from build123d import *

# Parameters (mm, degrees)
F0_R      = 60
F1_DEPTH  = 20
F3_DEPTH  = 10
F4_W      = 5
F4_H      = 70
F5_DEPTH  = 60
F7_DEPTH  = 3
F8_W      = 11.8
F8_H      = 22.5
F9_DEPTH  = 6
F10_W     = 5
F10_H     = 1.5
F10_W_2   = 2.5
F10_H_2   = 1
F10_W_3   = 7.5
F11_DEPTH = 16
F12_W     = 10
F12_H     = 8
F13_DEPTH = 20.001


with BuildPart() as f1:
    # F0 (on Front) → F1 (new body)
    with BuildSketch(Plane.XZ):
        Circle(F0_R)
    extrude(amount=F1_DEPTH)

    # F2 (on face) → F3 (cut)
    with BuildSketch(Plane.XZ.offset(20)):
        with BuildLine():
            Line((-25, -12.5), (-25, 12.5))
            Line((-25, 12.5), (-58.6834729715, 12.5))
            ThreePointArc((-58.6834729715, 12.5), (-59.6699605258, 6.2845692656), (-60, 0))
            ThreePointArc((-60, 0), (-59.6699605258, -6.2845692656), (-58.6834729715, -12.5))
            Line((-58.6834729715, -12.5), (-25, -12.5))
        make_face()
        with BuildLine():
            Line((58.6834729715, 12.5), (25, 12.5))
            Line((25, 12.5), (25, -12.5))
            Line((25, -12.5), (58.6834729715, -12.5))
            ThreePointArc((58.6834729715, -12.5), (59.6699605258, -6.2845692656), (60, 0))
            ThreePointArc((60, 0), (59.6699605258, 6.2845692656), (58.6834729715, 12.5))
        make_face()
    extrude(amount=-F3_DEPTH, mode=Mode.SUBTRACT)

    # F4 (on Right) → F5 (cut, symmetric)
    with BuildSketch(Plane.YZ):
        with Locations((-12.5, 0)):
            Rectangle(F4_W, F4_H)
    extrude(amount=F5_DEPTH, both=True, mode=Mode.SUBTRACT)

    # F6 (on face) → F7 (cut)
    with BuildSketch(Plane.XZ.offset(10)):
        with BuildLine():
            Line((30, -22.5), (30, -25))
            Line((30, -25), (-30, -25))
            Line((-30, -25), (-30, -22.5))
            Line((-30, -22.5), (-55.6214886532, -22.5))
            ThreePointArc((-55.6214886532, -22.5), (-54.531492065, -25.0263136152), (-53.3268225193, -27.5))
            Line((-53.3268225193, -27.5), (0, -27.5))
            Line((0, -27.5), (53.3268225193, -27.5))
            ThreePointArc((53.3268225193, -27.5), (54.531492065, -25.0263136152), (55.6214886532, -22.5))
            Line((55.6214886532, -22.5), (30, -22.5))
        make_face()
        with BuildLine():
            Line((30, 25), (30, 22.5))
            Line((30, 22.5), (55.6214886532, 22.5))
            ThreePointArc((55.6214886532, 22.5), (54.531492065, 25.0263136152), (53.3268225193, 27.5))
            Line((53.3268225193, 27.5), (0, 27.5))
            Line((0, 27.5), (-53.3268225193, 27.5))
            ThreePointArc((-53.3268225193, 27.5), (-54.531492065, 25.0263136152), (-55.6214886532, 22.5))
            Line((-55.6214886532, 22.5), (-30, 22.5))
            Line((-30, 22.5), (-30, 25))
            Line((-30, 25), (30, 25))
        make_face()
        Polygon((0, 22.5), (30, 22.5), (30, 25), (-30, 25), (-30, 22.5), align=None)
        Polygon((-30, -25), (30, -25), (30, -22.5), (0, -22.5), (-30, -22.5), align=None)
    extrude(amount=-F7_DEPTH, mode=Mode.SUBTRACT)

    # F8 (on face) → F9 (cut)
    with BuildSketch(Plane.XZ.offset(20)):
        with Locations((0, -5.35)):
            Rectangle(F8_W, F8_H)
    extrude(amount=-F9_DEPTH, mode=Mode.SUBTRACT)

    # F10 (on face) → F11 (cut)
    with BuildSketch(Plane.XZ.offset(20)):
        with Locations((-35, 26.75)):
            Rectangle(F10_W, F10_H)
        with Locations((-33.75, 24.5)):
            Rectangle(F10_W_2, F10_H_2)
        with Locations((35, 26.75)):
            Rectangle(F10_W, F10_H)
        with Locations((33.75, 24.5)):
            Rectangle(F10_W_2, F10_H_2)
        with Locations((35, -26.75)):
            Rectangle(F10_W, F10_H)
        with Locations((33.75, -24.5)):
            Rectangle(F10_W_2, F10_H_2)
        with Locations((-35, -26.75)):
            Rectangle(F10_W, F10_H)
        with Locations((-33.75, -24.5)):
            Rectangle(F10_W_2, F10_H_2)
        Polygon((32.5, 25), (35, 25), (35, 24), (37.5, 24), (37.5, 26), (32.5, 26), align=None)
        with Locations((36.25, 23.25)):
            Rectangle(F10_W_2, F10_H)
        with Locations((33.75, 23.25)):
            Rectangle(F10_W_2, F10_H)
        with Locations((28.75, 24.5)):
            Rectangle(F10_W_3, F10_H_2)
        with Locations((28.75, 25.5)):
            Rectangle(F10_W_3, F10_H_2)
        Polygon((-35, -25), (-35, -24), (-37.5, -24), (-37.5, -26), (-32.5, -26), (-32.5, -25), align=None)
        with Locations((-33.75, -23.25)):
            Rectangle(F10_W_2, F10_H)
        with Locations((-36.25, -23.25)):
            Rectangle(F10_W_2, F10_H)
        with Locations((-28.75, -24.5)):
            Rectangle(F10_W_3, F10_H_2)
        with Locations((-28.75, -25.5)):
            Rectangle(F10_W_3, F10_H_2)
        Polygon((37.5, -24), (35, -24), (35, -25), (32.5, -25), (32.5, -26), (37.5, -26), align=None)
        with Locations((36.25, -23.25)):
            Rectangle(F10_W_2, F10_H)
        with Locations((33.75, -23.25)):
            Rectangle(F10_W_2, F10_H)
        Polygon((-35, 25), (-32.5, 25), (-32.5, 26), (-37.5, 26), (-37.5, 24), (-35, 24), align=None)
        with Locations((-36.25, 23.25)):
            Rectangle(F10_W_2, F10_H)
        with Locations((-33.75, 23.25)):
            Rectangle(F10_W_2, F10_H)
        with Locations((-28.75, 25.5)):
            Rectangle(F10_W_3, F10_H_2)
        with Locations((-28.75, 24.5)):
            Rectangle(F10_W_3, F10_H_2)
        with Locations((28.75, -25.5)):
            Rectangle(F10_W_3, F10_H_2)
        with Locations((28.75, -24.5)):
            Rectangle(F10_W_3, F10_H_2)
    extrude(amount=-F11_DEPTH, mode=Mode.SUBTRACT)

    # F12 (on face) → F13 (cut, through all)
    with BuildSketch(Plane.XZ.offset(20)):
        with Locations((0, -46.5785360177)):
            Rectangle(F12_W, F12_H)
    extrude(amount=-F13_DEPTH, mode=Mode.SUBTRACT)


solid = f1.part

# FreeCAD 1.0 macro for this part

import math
import FreeCAD as App
import Part
import Sketcher
Q = App.Units.Quantity

doc = App.newDocument("Part")
body = doc.addObject("PartDesign::Body", "Body")

sketch1 = doc.addObject("Sketcher::SketchObject", "Sketch")
body.addObject(sketch1)
sketch1.AttachmentSupport = (doc.XZ_Plane, [""])
sketch1.MapMode = "FlatFace"
sketch1.addGeometry(Part.Circle(App.Vector(0, 0, 0), App.Vector(0, 0, 1), 60), False)
sketch1.addConstraint(Sketcher.Constraint("Coincident", 0, 3, -1, 1))
sketch1.addConstraint(Sketcher.Constraint("Diameter", 0, Q("120 mm")))
pad1 = doc.addObject("PartDesign::Pad", "Pad")
body.addObject(pad1)
pad1.Profile = sketch1
pad1.Length = 20

sketch2 = doc.addObject("Sketcher::SketchObject", "Sketch001")
body.addObject(sketch2)
sketch2.AttachmentSupport = (doc.XZ_Plane, [""])
sketch2.MapMode = "FlatFace"
sketch2.AttachmentOffset = App.Placement(App.Vector(0, 0, 20), App.Rotation())
sketch2.addGeometry(Part.LineSegment(App.Vector(-25, -12, 0), App.Vector(-25, 12, 0)), False)
sketch2.addGeometry(Part.LineSegment(App.Vector(-25, 12, 0), App.Vector(-59, 12, 0)), False)
sketch2.addGeometry(Part.ArcOfCircle(Part.Circle(App.Vector(0, 0, 0), App.Vector(0, 0, 1), 60), math.radians(167.98), math.radians(180)), False)
sketch2.addGeometry(Part.ArcOfCircle(Part.Circle(App.Vector(0, 0, 0), App.Vector(0, 0, 1), 60), math.radians(180), math.radians(192.02)), False)
sketch2.addGeometry(Part.LineSegment(App.Vector(-59, -12, 0), App.Vector(-25, -12, 0)), False)
sketch2.addGeometry(Part.LineSegment(App.Vector(59, 12, 0), App.Vector(25, 12, 0)), False)
sketch2.addGeometry(Part.LineSegment(App.Vector(25, 12, 0), App.Vector(25, -12, 0)), False)
sketch2.addGeometry(Part.LineSegment(App.Vector(25, -12, 0), App.Vector(59, -12, 0)), False)
sketch2.addGeometry(Part.ArcOfCircle(Part.Circle(App.Vector(0, 0, 0), App.Vector(0, 0, 1), 60), math.radians(-12.02), math.radians(0)), False)
sketch2.addGeometry(Part.ArcOfCircle(Part.Circle(App.Vector(0, 0, 0), App.Vector(0, 0, 1), 60), math.radians(0), math.radians(12.02)), False)
sketch2.addConstraint(Sketcher.Constraint("Coincident", 0, 2, 1, 1))
sketch2.addConstraint(Sketcher.Constraint("Coincident", 1, 2, 2, 1))
sketch2.addConstraint(Sketcher.Constraint("Tangent", 2, 2, 3, 1))
sketch2.addConstraint(Sketcher.Constraint("Coincident", 3, 2, 4, 1))
sketch2.addConstraint(Sketcher.Constraint("Coincident", 4, 2, 0, 1))
sketch2.addConstraint(Sketcher.Constraint("Coincident", 5, 2, 6, 1))
sketch2.addConstraint(Sketcher.Constraint("Coincident", 6, 2, 7, 1))
sketch2.addConstraint(Sketcher.Constraint("Coincident", 7, 2, 8, 1))
sketch2.addConstraint(Sketcher.Constraint("Tangent", 8, 2, 9, 1))
sketch2.addConstraint(Sketcher.Constraint("Coincident", 9, 2, 5, 1))
sketch2.addConstraint(Sketcher.Constraint("Vertical", 0))
sketch2.addConstraint(Sketcher.Constraint("Horizontal", 1))
sketch2.addConstraint(Sketcher.Constraint("Horizontal", 4))
sketch2.addConstraint(Sketcher.Constraint("Horizontal", 5))
sketch2.addConstraint(Sketcher.Constraint("Vertical", 6))
sketch2.addConstraint(Sketcher.Constraint("Horizontal", 7))
sketch2.addConstraint(Sketcher.Constraint("Coincident", 2, 3, -1, 1))
sketch2.addConstraint(Sketcher.Constraint("Coincident", 8, 3, -1, 1))
sketch2.addConstraint(Sketcher.Constraint("Equal", 2, 3))
sketch2.addConstraint(Sketcher.Constraint("Equal", 3, 8))
sketch2.addConstraint(Sketcher.Constraint("Equal", 8, 9))
sketch2.addConstraint(Sketcher.Constraint("Symmetric", 4, 2, 5, 2, -1, 1))
sketch2.addConstraint(Sketcher.Constraint("PointOnObject", 2, 2, -1))
sketch2.addConstraint(Sketcher.Constraint("PointOnObject", 8, 2, -1))
sketch2.addConstraint(Sketcher.Constraint("Horizontal", 1, 2, 5, 2))
sketch2.addConstraint(Sketcher.Constraint("Horizontal", 4, 2, 6, 2))
sketch2.addConstraint(Sketcher.Constraint("Radius", 2, Q("60 mm")))
sketch2.addConstraint(Sketcher.Constraint("DistanceY", 0, 1, 0, 2, Q("25 mm")))
sketch2.addConstraint(Sketcher.Constraint("DistanceX", 0, 2, -1, 1, Q("25 mm")))
pocket1 = doc.addObject("PartDesign::Pocket", "Pocket")
body.addObject(pocket1)
pocket1.Profile = sketch2
pocket1.Length = 10

sketch3 = doc.addObject("Sketcher::SketchObject", "Sketch002")
body.addObject(sketch3)
sketch3.AttachmentSupport = (doc.YZ_Plane, [""])
sketch3.MapMode = "FlatFace"
sketch3.addGeometry(Part.LineSegment(App.Vector(-15, 35, 0), App.Vector(-15, -35, 0)), False)
sketch3.addGeometry(Part.LineSegment(App.Vector(-15, -35, 0), App.Vector(-10, -35, 0)), False)
sketch3.addGeometry(Part.LineSegment(App.Vector(-10, -35, 0), App.Vector(-10, 35, 0)), False)
sketch3.addGeometry(Part.LineSegment(App.Vector(-10, 35, 0), App.Vector(-15, 35, 0)), False)
sketch3.addConstraint(Sketcher.Constraint("Coincident", 0, 2, 1, 1))
sketch3.addConstraint(Sketcher.Constraint("Coincident", 1, 2, 2, 1))
sketch3.addConstraint(Sketcher.Constraint("Coincident", 2, 2, 3, 1))
sketch3.addConstraint(Sketcher.Constraint("Coincident", 3, 2, 0, 1))
sketch3.addConstraint(Sketcher.Constraint("Vertical", 0))
sketch3.addConstraint(Sketcher.Constraint("Horizontal", 1))
sketch3.addConstraint(Sketcher.Constraint("Vertical", 2))
sketch3.addConstraint(Sketcher.Constraint("Horizontal", 3))
sketch3.addConstraint(Sketcher.Constraint("DistanceX", 1, 1, 1, 2, Q("5 mm")))
sketch3.addConstraint(Sketcher.Constraint("DistanceY", 0, 2, 0, 1, Q("70 mm")))
sketch3.addConstraint(Sketcher.Constraint("DistanceX", 0, 2, -1, 1, Q("15 mm")))
sketch3.addConstraint(Sketcher.Constraint("DistanceY", 0, 2, -1, 1, Q("35 mm")))
pocket2 = doc.addObject("PartDesign::Pocket", "Pocket001")
body.addObject(pocket2)
pocket2.Profile = sketch3
pocket2.Length = 120
pocket2.Midplane = True

sketch4 = doc.addObject("Sketcher::SketchObject", "Sketch003")
body.addObject(sketch4)
sketch4.AttachmentSupport = (doc.XZ_Plane, [""])
sketch4.MapMode = "FlatFace"
sketch4.AttachmentOffset = App.Placement(App.Vector(0, 0, 10), App.Rotation())
sketch4.addGeometry(Part.ArcOfCircle(Part.Circle(App.Vector(0, 0, 0), App.Vector(0, 0, 1), 60), math.radians(-157.98), math.radians(-152.72)), False)
sketch4.addGeometry(Part.LineSegment(App.Vector(-53, -28, 0), App.Vector(53, -28, 0)), False)
sketch4.addGeometry(Part.ArcOfCircle(Part.Circle(App.Vector(0, 0, 0), App.Vector(0, 0, 1), 60), math.radians(-27.28), math.radians(-22.02)), False)
sketch4.addGeometry(Part.LineSegment(App.Vector(56, -22, 0), App.Vector(-56, -22, 0)), False)
sketch4.addGeometry(Part.ArcOfCircle(Part.Circle(App.Vector(0, 0, 0), App.Vector(0, 0, 1), 60), math.radians(22.02), math.radians(27.28)), False)
sketch4.addGeometry(Part.LineSegment(App.Vector(53, 28, 0), App.Vector(-53, 28, 0)), False)
sketch4.addGeometry(Part.ArcOfCircle(Part.Circle(App.Vector(0, 0, 0), App.Vector(0, 0, 1), 60), math.radians(152.72), math.radians(157.98)), False)
sketch4.addGeometry(Part.LineSegment(App.Vector(-56, 22, 0), App.Vector(56, 22, 0)), False)
sketch4.addConstraint(Sketcher.Constraint("Coincident", 0, 2, 1, 1))
sketch4.addConstraint(Sketcher.Constraint("Coincident", 1, 2, 2, 1))
sketch4.addConstraint(Sketcher.Constraint("Coincident", 2, 2, 3, 1))
sketch4.addConstraint(Sketcher.Constraint("Coincident", 3, 2, 0, 1))
sketch4.addConstraint(Sketcher.Constraint("Coincident", 4, 2, 5, 1))
sketch4.addConstraint(Sketcher.Constraint("Coincident", 5, 2, 6, 1))
sketch4.addConstraint(Sketcher.Constraint("Coincident", 6, 2, 7, 1))
sketch4.addConstraint(Sketcher.Constraint("Coincident", 7, 2, 4, 1))
sketch4.addConstraint(Sketcher.Constraint("Horizontal", 1))
sketch4.addConstraint(Sketcher.Constraint("Horizontal", 3))
sketch4.addConstraint(Sketcher.Constraint("Horizontal", 5))
sketch4.addConstraint(Sketcher.Constraint("Horizontal", 7))
sketch4.addConstraint(Sketcher.Constraint("Coincident", 0, 3, -1, 1))
sketch4.addConstraint(Sketcher.Constraint("Coincident", 2, 3, -1, 1))
sketch4.addConstraint(Sketcher.Constraint("Coincident", 4, 3, -1, 1))
sketch4.addConstraint(Sketcher.Constraint("Coincident", 6, 3, -1, 1))
sketch4.addConstraint(Sketcher.Constraint("Equal", 0, 2))
sketch4.addConstraint(Sketcher.Constraint("Equal", 2, 4))
sketch4.addConstraint(Sketcher.Constraint("Equal", 4, 6))
sketch4.addConstraint(Sketcher.Constraint("Vertical", 1, 2, 4, 2))
sketch4.addConstraint(Sketcher.Constraint("Vertical", 3, 2, 6, 2))
sketch4.addConstraint(Sketcher.Constraint("Radius", 0, Q("60 mm")))
sketch4.addConstraint(Sketcher.Constraint("DistanceY", 1, 2, 2, 2, Q("5 mm")))
sketch4.addConstraint(Sketcher.Constraint("DistanceY", 2, 2, 4, 2, Q("50 mm")))
pocket3 = doc.addObject("PartDesign::Pocket", "Pocket002")
body.addObject(pocket3)
pocket3.Profile = sketch4
pocket3.Length = 3

sketch5 = doc.addObject("Sketcher::SketchObject", "Sketch004")
body.addObject(sketch5)
sketch5.AttachmentSupport = (doc.XZ_Plane, [""])
sketch5.MapMode = "FlatFace"
sketch5.AttachmentOffset = App.Placement(App.Vector(0, 0, 20), App.Rotation())
sketch5.addGeometry(Part.LineSegment(App.Vector(-6, 6, 0), App.Vector(-6, -17, 0)), False)
sketch5.addGeometry(Part.LineSegment(App.Vector(-6, -17, 0), App.Vector(6, -17, 0)), False)
sketch5.addGeometry(Part.LineSegment(App.Vector(6, -17, 0), App.Vector(6, 6, 0)), False)
sketch5.addGeometry(Part.LineSegment(App.Vector(6, 6, 0), App.Vector(-6, 6, 0)), False)
sketch5.addConstraint(Sketcher.Constraint("Coincident", 0, 2, 1, 1))
sketch5.addConstraint(Sketcher.Constraint("Coincident", 1, 2, 2, 1))
sketch5.addConstraint(Sketcher.Constraint("Coincident", 2, 2, 3, 1))
sketch5.addConstraint(Sketcher.Constraint("Coincident", 3, 2, 0, 1))
sketch5.addConstraint(Sketcher.Constraint("Vertical", 0))
sketch5.addConstraint(Sketcher.Constraint("Horizontal", 1))
sketch5.addConstraint(Sketcher.Constraint("Vertical", 2))
sketch5.addConstraint(Sketcher.Constraint("Horizontal", 3))
sketch5.addConstraint(Sketcher.Constraint("DistanceX", 1, 1, 1, 2, Q("11.8 mm")))
sketch5.addConstraint(Sketcher.Constraint("DistanceY", 0, 2, 0, 1, Q("22.5 mm")))
sketch5.addConstraint(Sketcher.Constraint("DistanceX", 0, 2, -1, 1, Q("5.9 mm")))
sketch5.addConstraint(Sketcher.Constraint("DistanceY", 0, 2, -1, 1, Q("16.6 mm")))
pocket4 = doc.addObject("PartDesign::Pocket", "Pocket003")
body.addObject(pocket4)
pocket4.Profile = sketch5
pocket4.Length = 6

sketch6 = doc.addObject("Sketcher::SketchObject", "Sketch005")
body.addObject(sketch6)
sketch6.AttachmentSupport = (doc.XZ_Plane, [""])
sketch6.MapMode = "FlatFace"
sketch6.AttachmentOffset = App.Placement(App.Vector(0, 0, 20), App.Rotation())
sketch6.addGeometry(Part.LineSegment(App.Vector(-37.5, 27.5, 0), App.Vector(-37.5, 22.5, 0)), False)
sketch6.addGeometry(Part.LineSegment(App.Vector(-37.5, 22.5, 0), App.Vector(-32.5, 22.5, 0)), False)
sketch6.addGeometry(Part.LineSegment(App.Vector(-32.5, 22.5, 0), App.Vector(-32.5, 24, 0)), False)
sketch6.addGeometry(Part.LineSegment(App.Vector(-32.5, 24, 0), App.Vector(-25, 24, 0)), False)
sketch6.addGeometry(Part.LineSegment(App.Vector(-25, 24, 0), App.Vector(-25, 26, 0)), False)
sketch6.addGeometry(Part.LineSegment(App.Vector(-25, 26, 0), App.Vector(-32.5, 26, 0)), False)
sketch6.addGeometry(Part.LineSegment(App.Vector(-32.5, 26, 0), App.Vector(-32.5, 27.5, 0)), False)
sketch6.addGeometry(Part.LineSegment(App.Vector(-32.5, 27.5, 0), App.Vector(-37.5, 27.5, 0)), False)
sketch6.addGeometry(Part.LineSegment(App.Vector(32.5, 27.5, 0), App.Vector(32.5, 26, 0)), False)
sketch6.addGeometry(Part.LineSegment(App.Vector(32.5, 26, 0), App.Vector(25, 26, 0)), False)
sketch6.addGeometry(Part.LineSegment(App.Vector(25, 26, 0), App.Vector(25, 24, 0)), False)
sketch6.addGeometry(Part.LineSegment(App.Vector(25, 24, 0), App.Vector(32.5, 24, 0)), False)
sketch6.addGeometry(Part.LineSegment(App.Vector(32.5, 24, 0), App.Vector(32.5, 22.5, 0)), False)
sketch6.addGeometry(Part.LineSegment(App.Vector(32.5, 22.5, 0), App.Vector(37.5, 22.5, 0)), False)
sketch6.addGeometry(Part.LineSegment(App.Vector(37.5, 22.5, 0), App.Vector(37.5, 27.5, 0)), False)
sketch6.addGeometry(Part.LineSegment(App.Vector(37.5, 27.5, 0), App.Vector(32.5, 27.5, 0)), False)
sketch6.addGeometry(Part.LineSegment(App.Vector(32.5, -27.5, 0), App.Vector(37.5, -27.5, 0)), False)
sketch6.addGeometry(Part.LineSegment(App.Vector(37.5, -27.5, 0), App.Vector(37.5, -22.5, 0)), False)
sketch6.addGeometry(Part.LineSegment(App.Vector(37.5, -22.5, 0), App.Vector(32.5, -22.5, 0)), False)
sketch6.addGeometry(Part.LineSegment(App.Vector(32.5, -22.5, 0), App.Vector(32.5, -24, 0)), False)
sketch6.addGeometry(Part.LineSegment(App.Vector(32.5, -24, 0), App.Vector(25, -24, 0)), False)
sketch6.addGeometry(Part.LineSegment(App.Vector(25, -24, 0), App.Vector(25, -26, 0)), False)
sketch6.addGeometry(Part.LineSegment(App.Vector(25, -26, 0), App.Vector(32.5, -26, 0)), False)
sketch6.addGeometry(Part.LineSegment(App.Vector(32.5, -26, 0), App.Vector(32.5, -27.5, 0)), False)
sketch6.addGeometry(Part.LineSegment(App.Vector(-37.5, -27.5, 0), App.Vector(-32.5, -27.5, 0)), False)
sketch6.addGeometry(Part.LineSegment(App.Vector(-32.5, -27.5, 0), App.Vector(-32.5, -26, 0)), False)
sketch6.addGeometry(Part.LineSegment(App.Vector(-32.5, -26, 0), App.Vector(-25, -26, 0)), False)
sketch6.addGeometry(Part.LineSegment(App.Vector(-25, -26, 0), App.Vector(-25, -24, 0)), False)
sketch6.addGeometry(Part.LineSegment(App.Vector(-25, -24, 0), App.Vector(-32.5, -24, 0)), False)
sketch6.addGeometry(Part.LineSegment(App.Vector(-32.5, -24, 0), App.Vector(-32.5, -22.5, 0)), False)
sketch6.addGeometry(Part.LineSegment(App.Vector(-32.5, -22.5, 0), App.Vector(-37.5, -22.5, 0)), False)
sketch6.addGeometry(Part.LineSegment(App.Vector(-37.5, -22.5, 0), App.Vector(-37.5, -27.5, 0)), False)
sketch6.addConstraint(Sketcher.Constraint("Coincident", 0, 2, 1, 1))
sketch6.addConstraint(Sketcher.Constraint("Coincident", 1, 2, 2, 1))
sketch6.addConstraint(Sketcher.Constraint("Coincident", 2, 2, 3, 1))
sketch6.addConstraint(Sketcher.Constraint("Coincident", 3, 2, 4, 1))
sketch6.addConstraint(Sketcher.Constraint("Coincident", 4, 2, 5, 1))
sketch6.addConstraint(Sketcher.Constraint("Coincident", 5, 2, 6, 1))
sketch6.addConstraint(Sketcher.Constraint("Coincident", 6, 2, 7, 1))
sketch6.addConstraint(Sketcher.Constraint("Coincident", 7, 2, 0, 1))
sketch6.addConstraint(Sketcher.Constraint("Coincident", 8, 2, 9, 1))
sketch6.addConstraint(Sketcher.Constraint("Coincident", 9, 2, 10, 1))
sketch6.addConstraint(Sketcher.Constraint("Coincident", 10, 2, 11, 1))
sketch6.addConstraint(Sketcher.Constraint("Coincident", 11, 2, 12, 1))
sketch6.addConstraint(Sketcher.Constraint("Coincident", 12, 2, 13, 1))
sketch6.addConstraint(Sketcher.Constraint("Coincident", 13, 2, 14, 1))
sketch6.addConstraint(Sketcher.Constraint("Coincident", 14, 2, 15, 1))
sketch6.addConstraint(Sketcher.Constraint("Coincident", 15, 2, 8, 1))
sketch6.addConstraint(Sketcher.Constraint("Coincident", 16, 2, 17, 1))
sketch6.addConstraint(Sketcher.Constraint("Coincident", 17, 2, 18, 1))
sketch6.addConstraint(Sketcher.Constraint("Coincident", 18, 2, 19, 1))
sketch6.addConstraint(Sketcher.Constraint("Coincident", 19, 2, 20, 1))
sketch6.addConstraint(Sketcher.Constraint("Coincident", 20, 2, 21, 1))
sketch6.addConstraint(Sketcher.Constraint("Coincident", 21, 2, 22, 1))
sketch6.addConstraint(Sketcher.Constraint("Coincident", 22, 2, 23, 1))
sketch6.addConstraint(Sketcher.Constraint("Coincident", 23, 2, 16, 1))
sketch6.addConstraint(Sketcher.Constraint("Coincident", 24, 2, 25, 1))
sketch6.addConstraint(Sketcher.Constraint("Coincident", 25, 2, 26, 1))
sketch6.addConstraint(Sketcher.Constraint("Coincident", 26, 2, 27, 1))
sketch6.addConstraint(Sketcher.Constraint("Coincident", 27, 2, 28, 1))
sketch6.addConstraint(Sketcher.Constraint("Coincident", 28, 2, 29, 1))
sketch6.addConstraint(Sketcher.Constraint("Coincident", 29, 2, 30, 1))
sketch6.addConstraint(Sketcher.Constraint("Coincident", 30, 2, 31, 1))
sketch6.addConstraint(Sketcher.Constraint("Coincident", 31, 2, 24, 1))
sketch6.addConstraint(Sketcher.Constraint("Vertical", 0))
sketch6.addConstraint(Sketcher.Constraint("Horizontal", 1))
sketch6.addConstraint(Sketcher.Constraint("Vertical", 2))
sketch6.addConstraint(Sketcher.Constraint("Horizontal", 3))
sketch6.addConstraint(Sketcher.Constraint("Vertical", 4))
sketch6.addConstraint(Sketcher.Constraint("Horizontal", 5))
sketch6.addConstraint(Sketcher.Constraint("Vertical", 6))
sketch6.addConstraint(Sketcher.Constraint("Horizontal", 7))
sketch6.addConstraint(Sketcher.Constraint("Vertical", 8))
sketch6.addConstraint(Sketcher.Constraint("Horizontal", 9))
sketch6.addConstraint(Sketcher.Constraint("Vertical", 10))
sketch6.addConstraint(Sketcher.Constraint("Horizontal", 11))
sketch6.addConstraint(Sketcher.Constraint("Vertical", 12))
sketch6.addConstraint(Sketcher.Constraint("Horizontal", 13))
sketch6.addConstraint(Sketcher.Constraint("Vertical", 14))
sketch6.addConstraint(Sketcher.Constraint("Horizontal", 15))
sketch6.addConstraint(Sketcher.Constraint("Horizontal", 16))
sketch6.addConstraint(Sketcher.Constraint("Vertical", 17))
sketch6.addConstraint(Sketcher.Constraint("Horizontal", 18))
sketch6.addConstraint(Sketcher.Constraint("Vertical", 19))
sketch6.addConstraint(Sketcher.Constraint("Horizontal", 20))
sketch6.addConstraint(Sketcher.Constraint("Vertical", 21))
sketch6.addConstraint(Sketcher.Constraint("Horizontal", 22))
sketch6.addConstraint(Sketcher.Constraint("Vertical", 23))
sketch6.addConstraint(Sketcher.Constraint("Horizontal", 24))
sketch6.addConstraint(Sketcher.Constraint("Vertical", 25))
sketch6.addConstraint(Sketcher.Constraint("Horizontal", 26))
sketch6.addConstraint(Sketcher.Constraint("Vertical", 27))
sketch6.addConstraint(Sketcher.Constraint("Horizontal", 28))
sketch6.addConstraint(Sketcher.Constraint("Vertical", 29))
sketch6.addConstraint(Sketcher.Constraint("Horizontal", 30))
sketch6.addConstraint(Sketcher.Constraint("Vertical", 31))
sketch6.addConstraint(Sketcher.Constraint("Symmetric", 7, 2, 16, 2, -1, 1))
sketch6.addConstraint(Sketcher.Constraint("Symmetric", 1, 2, 18, 2, -1, 1))
sketch6.addConstraint(Sketcher.Constraint("Symmetric", 3, 2, 20, 2, -1, 1))
sketch6.addConstraint(Sketcher.Constraint("Symmetric", 5, 2, 22, 2, -1, 1))
sketch6.addConstraint(Sketcher.Constraint("Symmetric", 15, 2, 24, 2, -1, 1))
sketch6.addConstraint(Sketcher.Constraint("Symmetric", 9, 2, 26, 2, -1, 1))
sketch6.addConstraint(Sketcher.Constraint("Symmetric", 11, 2, 28, 2, -1, 1))
sketch6.addConstraint(Sketcher.Constraint("Symmetric", 13, 2, 30, 2, -1, 1))
sketch6.addConstraint(Sketcher.Constraint("Symmetric", 5, 2, 8, 2, -2))
sketch6.addConstraint(Sketcher.Constraint("Symmetric", 3, 2, 10, 2, -2))
sketch6.addConstraint(Sketcher.Constraint("Symmetric", 1, 2, 12, 2, -2))
sketch6.addConstraint(Sketcher.Constraint("Symmetric", 7, 2, 14, 2, -2))
sketch6.addConstraint(Sketcher.Constraint("Vertical", 2, 2, 5, 2))
sketch6.addConstraint(Sketcher.Constraint("Equal", 30, 0))
sketch6.addConstraint(Sketcher.Constraint("Equal", 2, 6))
sketch6.addConstraint(Sketcher.Constraint("DistanceX", 1, 1, 1, 2, Q("5 mm")))
sketch6.addConstraint(Sketcher.Constraint("DistanceY", 4, 1, 4, 2, Q("2 mm")))
sketch6.addConstraint(Sketcher.Constraint("DistanceX", 3, 1, 3, 2, Q("7.5 mm")))
sketch6.addConstraint(Sketcher.Constraint("DistanceY", -1, 1, 2, 2, Q("24 mm")))
sketch6.addConstraint(Sketcher.Constraint("DistanceX", 3, 2, -1, 1, Q("25 mm")))
pocket5 = doc.addObject("PartDesign::Pocket", "Pocket004")
body.addObject(pocket5)
pocket5.Profile = sketch6
pocket5.Length = 16

sketch7 = doc.addObject("Sketcher::SketchObject", "Sketch006")
body.addObject(sketch7)
sketch7.AttachmentSupport = (doc.XZ_Plane, [""])
sketch7.MapMode = "FlatFace"
sketch7.AttachmentOffset = App.Placement(App.Vector(0, 0, 20), App.Rotation())
sketch7.addGeometry(Part.LineSegment(App.Vector(-5, -43, 0), App.Vector(-5, -51, 0)), False)
sketch7.addGeometry(Part.LineSegment(App.Vector(-5, -51, 0), App.Vector(5, -51, 0)), False)
sketch7.addGeometry(Part.LineSegment(App.Vector(5, -51, 0), App.Vector(5, -43, 0)), False)
sketch7.addGeometry(Part.LineSegment(App.Vector(5, -43, 0), App.Vector(-5, -43, 0)), False)
sketch7.addConstraint(Sketcher.Constraint("Coincident", 0, 2, 1, 1))
sketch7.addConstraint(Sketcher.Constraint("Coincident", 1, 2, 2, 1))
sketch7.addConstraint(Sketcher.Constraint("Coincident", 2, 2, 3, 1))
sketch7.addConstraint(Sketcher.Constraint("Coincident", 3, 2, 0, 1))
sketch7.addConstraint(Sketcher.Constraint("Vertical", 0))
sketch7.addConstraint(Sketcher.Constraint("Horizontal", 1))
sketch7.addConstraint(Sketcher.Constraint("Vertical", 2))
sketch7.addConstraint(Sketcher.Constraint("Horizontal", 3))
sketch7.addConstraint(Sketcher.Constraint("DistanceX", 1, 1, 1, 2, Q("10 mm")))
sketch7.addConstraint(Sketcher.Constraint("DistanceY", 0, 2, 0, 1, Q("8 mm")))
sketch7.addConstraint(Sketcher.Constraint("DistanceX", 0, 2, -1, 1, Q("5 mm")))
sketch7.addConstraint(Sketcher.Constraint("DistanceY", 0, 2, -1, 1, Q("50.578536 mm")))
pocket6 = doc.addObject("PartDesign::Pocket", "Pocket005")
body.addObject(pocket6)
pocket6.Profile = sketch7
pocket6.Type = "ThroughAll"

doc.recompute()
